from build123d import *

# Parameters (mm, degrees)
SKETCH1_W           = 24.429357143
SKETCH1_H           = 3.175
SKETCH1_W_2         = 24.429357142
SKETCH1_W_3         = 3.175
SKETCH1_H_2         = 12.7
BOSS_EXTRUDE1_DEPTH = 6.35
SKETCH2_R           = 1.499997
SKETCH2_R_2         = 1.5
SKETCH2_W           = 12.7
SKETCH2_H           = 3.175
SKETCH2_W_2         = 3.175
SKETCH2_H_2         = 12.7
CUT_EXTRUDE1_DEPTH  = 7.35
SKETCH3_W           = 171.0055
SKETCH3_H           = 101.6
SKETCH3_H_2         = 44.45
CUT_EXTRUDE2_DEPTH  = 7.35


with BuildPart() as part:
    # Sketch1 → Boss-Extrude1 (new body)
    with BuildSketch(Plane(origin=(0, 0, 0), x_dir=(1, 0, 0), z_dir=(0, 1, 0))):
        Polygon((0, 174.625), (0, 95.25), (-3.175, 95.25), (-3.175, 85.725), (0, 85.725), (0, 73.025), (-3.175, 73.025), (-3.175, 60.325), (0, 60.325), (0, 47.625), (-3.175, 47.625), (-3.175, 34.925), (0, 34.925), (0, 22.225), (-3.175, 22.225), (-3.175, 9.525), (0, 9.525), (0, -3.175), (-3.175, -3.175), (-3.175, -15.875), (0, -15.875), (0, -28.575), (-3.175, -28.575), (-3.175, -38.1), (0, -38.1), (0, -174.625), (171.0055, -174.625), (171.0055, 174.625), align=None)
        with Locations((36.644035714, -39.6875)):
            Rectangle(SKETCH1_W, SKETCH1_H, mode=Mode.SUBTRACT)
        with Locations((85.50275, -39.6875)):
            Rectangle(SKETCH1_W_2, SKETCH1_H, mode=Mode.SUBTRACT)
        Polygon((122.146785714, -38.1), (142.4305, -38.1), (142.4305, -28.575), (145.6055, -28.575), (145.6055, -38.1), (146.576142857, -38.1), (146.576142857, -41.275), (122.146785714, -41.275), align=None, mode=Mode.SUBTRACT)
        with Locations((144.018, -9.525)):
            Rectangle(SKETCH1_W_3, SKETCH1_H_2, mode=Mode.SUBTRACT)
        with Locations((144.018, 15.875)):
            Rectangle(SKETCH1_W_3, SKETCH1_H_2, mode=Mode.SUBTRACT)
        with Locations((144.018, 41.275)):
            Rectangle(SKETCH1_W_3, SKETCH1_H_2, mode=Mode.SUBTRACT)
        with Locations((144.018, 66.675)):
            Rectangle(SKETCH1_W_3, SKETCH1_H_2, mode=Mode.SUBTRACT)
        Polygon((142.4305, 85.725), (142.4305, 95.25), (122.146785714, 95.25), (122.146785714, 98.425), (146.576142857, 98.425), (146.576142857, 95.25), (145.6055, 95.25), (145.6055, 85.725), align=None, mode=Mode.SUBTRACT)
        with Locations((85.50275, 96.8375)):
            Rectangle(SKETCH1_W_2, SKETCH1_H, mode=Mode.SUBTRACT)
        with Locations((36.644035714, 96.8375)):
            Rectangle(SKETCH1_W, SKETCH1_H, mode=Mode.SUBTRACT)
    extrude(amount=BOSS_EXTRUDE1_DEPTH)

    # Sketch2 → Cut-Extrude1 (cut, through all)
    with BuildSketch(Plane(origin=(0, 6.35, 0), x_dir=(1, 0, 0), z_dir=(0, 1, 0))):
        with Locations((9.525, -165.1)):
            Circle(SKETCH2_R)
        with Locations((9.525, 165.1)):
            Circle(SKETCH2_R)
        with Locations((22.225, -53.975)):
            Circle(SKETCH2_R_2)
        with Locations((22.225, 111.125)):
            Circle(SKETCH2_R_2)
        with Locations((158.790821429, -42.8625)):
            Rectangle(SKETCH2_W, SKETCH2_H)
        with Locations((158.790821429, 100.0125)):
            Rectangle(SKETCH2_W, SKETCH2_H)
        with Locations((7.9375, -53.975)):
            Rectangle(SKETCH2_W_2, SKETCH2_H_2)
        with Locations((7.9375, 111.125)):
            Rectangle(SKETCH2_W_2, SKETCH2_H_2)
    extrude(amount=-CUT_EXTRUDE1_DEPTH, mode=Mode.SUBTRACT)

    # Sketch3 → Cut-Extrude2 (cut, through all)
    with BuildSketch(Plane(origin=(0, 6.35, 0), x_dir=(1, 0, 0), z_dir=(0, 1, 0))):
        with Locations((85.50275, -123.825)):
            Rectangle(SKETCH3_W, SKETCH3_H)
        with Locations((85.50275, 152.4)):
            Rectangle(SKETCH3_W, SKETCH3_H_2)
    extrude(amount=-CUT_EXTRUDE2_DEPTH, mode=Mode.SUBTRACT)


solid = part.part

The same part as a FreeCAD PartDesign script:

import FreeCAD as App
import Part
import Sketcher
from FreeCAD import Vector
Q = App.Units.Quantity


def add_polygon(sketch, points):
    """Adds a closed chain of lines whose ends are joined by coincident constraints."""
    first, n = sketch.GeometryCount, len(points)
    for a, b in zip(points, points[1:] + points[:1]):
        sketch.addGeometry(Part.LineSegment(App.Vector(*a, 0), App.Vector(*b, 0)), False)
    for i in range(n):
        sketch.addConstraint(Sketcher.Constraint("Coincident", first + i, 2, first + (i + 1) % n, 1))

doc = App.newDocument("Part")
body = doc.addObject("PartDesign::Body", "Body")

sketch1 = doc.addObject("Sketcher::SketchObject", "Sketch")
body.addObject(sketch1)
sketch1.AttachmentSupport = (doc.XZ_Plane, [""])
sketch1.MapMode = "FlatFace"
add_polygon(sketch1, [(0, -174.6), (0, -95.2), (-3.2, -95.2), (-3.2, -85.7), (0, -85.7), (0, -73), (-3.2, -73), (-3.2, -60.3), (0, -60.3), (0, -47.6), (-3.2, -47.6), (-3.2, -34.9), (0, -34.9), (0, -22.2), (-3.2, -22.2), (-3.2, -9.5), (0, -9.5), (0, 3.2), (-3.2, 3.2), (-3.2, 15.9), (0, 15.9), (0, 28.6), (-3.2, 28.6), (-3.2, 38.1), (0, 38.1), (0, 174.6), (171, 174.6), (171, -174.6)])
add_polygon(sketch1, [(48.9, 41.3), (24.4, 41.3), (24.4, 38.1), (48.9, 38.1)])
add_polygon(sketch1, [(97.7, 41.3), (73.3, 41.3), (73.3, 38.1), (97.7, 38.1)])
add_polygon(sketch1, [(122.1, 41.3), (122.1, 38.1), (142.4, 38.1), (142.4, 28.6), (145.6, 28.6), (145.6, 38.1), (146.6, 38.1), (146.6, 41.3)])
add_polygon(sketch1, [(145.6, 15.9), (142.4, 15.9), (142.4, 3.2), (145.6, 3.2)])
add_polygon(sketch1, [(145.6, -9.5), (142.4, -9.5), (142.4, -22.2), (145.6, -22.2)])
add_polygon(sketch1, [(48.9, -95.2), (24.4, -95.2), (24.4, -98.4), (48.9, -98.4)])
add_polygon(sketch1, [(145.6, -34.9), (142.4, -34.9), (142.4, -47.6), (145.6, -47.6)])
add_polygon(sketch1, [(97.7, -95.2), (73.3, -95.2), (73.3, -98.4), (97.7, -98.4)])
add_polygon(sketch1, [(145.6, -60.3), (142.4, -60.3), (142.4, -73), (145.6, -73)])
add_polygon(sketch1, [(145.6, -85.7), (142.4, -85.7), (142.4, -95.2), (122.1, -95.2), (122.1, -98.4), (146.6, -98.4), (146.6, -95.2), (145.6, -95.2)])
sketch1.addConstraint(Sketcher.Constraint("Vertical", 0))
sketch1.addConstraint(Sketcher.Constraint("Horizontal", 1))
sketch1.addConstraint(Sketcher.Constraint("Vertical", 2))
sketch1.addConstraint(Sketcher.Constraint("Horizontal", 3))
sketch1.addConstraint(Sketcher.Constraint("Vertical", 4))
sketch1.addConstraint(Sketcher.Constraint("Horizontal", 5))
sketch1.addConstraint(Sketcher.Constraint("Vertical", 6))
sketch1.addConstraint(Sketcher.Constraint("Horizontal", 7))
sketch1.addConstraint(Sketcher.Constraint("Vertical", 8))
sketch1.addConstraint(Sketcher.Constraint("Horizontal", 9))
sketch1.addConstraint(Sketcher.Constraint("Vertical", 10))
sketch1.addConstraint(Sketcher.Constraint("Horizontal", 11))
sketch1.addConstraint(Sketcher.Constraint("Vertical", 12))
sketch1.addConstraint(Sketcher.Constraint("Horizontal", 13))
sketch1.addConstraint(Sketcher.Constraint("Vertical", 14))
sketch1.addConstraint(Sketcher.Constraint("Horizontal", 15))
sketch1.addConstraint(Sketcher.Constraint("Vertical", 16))
sketch1.addConstraint(Sketcher.Constraint("Horizontal", 17))
sketch1.addConstraint(Sketcher.Constraint("Vertical", 18))
sketch1.addConstraint(Sketcher.Constraint("Horizontal", 19))
sketch1.addConstraint(Sketcher.Constraint("Vertical", 20))
sketch1.addConstraint(Sketcher.Constraint("Horizontal", 21))
sketch1.addConstraint(Sketcher.Constraint("Vertical", 22))
sketch1.addConstraint(Sketcher.Constraint("Horizontal", 23))
sketch1.addConstraint(Sketcher.Constraint("Vertical", 24))
sketch1.addConstraint(Sketcher.Constraint("Horizontal", 25))
sketch1.addConstraint(Sketcher.Constraint("Vertical", 26))
sketch1.addConstraint(Sketcher.Constraint("Horizontal", 27))
sketch1.addConstraint(Sketcher.Constraint("Horizontal", 28))
sketch1.addConstraint(Sketcher.Constraint("Vertical", 29))
sketch1.addConstraint(Sketcher.Constraint("Horizontal", 30))
sketch1.addConstraint(Sketcher.Constraint("Vertical", 31))
sketch1.addConstraint(Sketcher.Constraint("Horizontal", 32))
sketch1.addConstraint(Sketcher.Constraint("Vertical", 33))
sketch1.addConstraint(Sketcher.Constraint("Horizontal", 34))
sketch1.addConstraint(Sketcher.Constraint("Vertical", 35))
sketch1.addConstraint(Sketcher.Constraint("Vertical", 36))
sketch1.addConstraint(Sketcher.Constraint("Horizontal", 37))
sketch1.addConstraint(Sketcher.Constraint("Vertical", 38))
sketch1.addConstraint(Sketcher.Constraint("Horizontal", 39))
sketch1.addConstraint(Sketcher.Constraint("Vertical", 40))
sketch1.addConstraint(Sketcher.Constraint("Horizontal", 41))
sketch1.addConstraint(Sketcher.Constraint("Vertical", 42))
sketch1.addConstraint(Sketcher.Constraint("Horizontal", 43))
sketch1.addConstraint(Sketcher.Constraint("Horizontal", 44))
sketch1.addConstraint(Sketcher.Constraint("Vertical", 45))
sketch1.addConstraint(Sketcher.Constraint("Horizontal", 46))
sketch1.addConstraint(Sketcher.Constraint("Vertical", 47))
sketch1.addConstraint(Sketcher.Constraint("Horizontal", 48))
sketch1.addConstraint(Sketcher.Constraint("Vertical", 49))
sketch1.addConstraint(Sketcher.Constraint("Horizontal", 50))
sketch1.addConstraint(Sketcher.Constraint("Vertical", 51))
sketch1.addConstraint(Sketcher.Constraint("Horizontal", 52))
sketch1.addConstraint(Sketcher.Constraint("Vertical", 53))
sketch1.addConstraint(Sketcher.Constraint("Horizontal", 54))
sketch1.addConstraint(Sketcher.Constraint("Vertical", 55))
sketch1.addConstraint(Sketcher.Constraint("Horizontal", 56))
sketch1.addConstraint(Sketcher.Constraint("Vertical", 57))
sketch1.addConstraint(Sketcher.Constraint("Horizontal", 58))
sketch1.addConstraint(Sketcher.Constraint("Vertical", 59))
sketch1.addConstraint(Sketcher.Constraint("Horizontal", 60))
sketch1.addConstraint(Sketcher.Constraint("Vertical", 61))
sketch1.addConstraint(Sketcher.Constraint("Horizontal", 62))
sketch1.addConstraint(Sketcher.Constraint("Vertical", 63))
sketch1.addConstraint(Sketcher.Constraint("Horizontal", 64))
sketch1.addConstraint(Sketcher.Constraint("Vertical", 65))
sketch1.addConstraint(Sketcher.Constraint("Horizontal", 66))
sketch1.addConstraint(Sketcher.Constraint("Vertical", 67))
sketch1.addConstraint(Sketcher.Constraint("Horizontal", 68))
sketch1.addConstraint(Sketcher.Constraint("Vertical", 69))
sketch1.addConstraint(Sketcher.Constraint("Horizontal", 70))
sketch1.addConstraint(Sketcher.Constraint("Vertical", 71))
sketch1.addConstraint(Sketcher.Constraint("Horizontal", 72))
sketch1.addConstraint(Sketcher.Constraint("Vertical", 73))
sketch1.addConstraint(Sketcher.Constraint("Horizontal", 74))
sketch1.addConstraint(Sketcher.Constraint("Vertical", 75))
sketch1.addConstraint(Sketcher.Constraint("Symmetric", 24, 2, 27, 2, -1, 1))
sketch1.addConstraint(Sketcher.Constraint("PointOnObject", 0, 2, -2))
sketch1.addConstraint(Sketcher.Constraint("PointOnObject", 3, 2, -2))
sketch1.addConstraint(Sketcher.Constraint("PointOnObject", 7, 2, -2))
sketch1.addConstraint(Sketcher.Constraint("PointOnObject", 11, 2, -2))
sketch1.addConstraint(Sketcher.Constraint("PointOnObject", 15, 2, -2))
sketch1.addConstraint(Sketcher.Constraint("PointOnObject", 19, 2, -2))
sketch1.addConstraint(Sketcher.Constraint("Horizontal", 23, 2, 29, 2))
sketch1.addConstraint(Sketcher.Constraint("Horizontal", 31, 2, 32, 2))
sketch1.addConstraint(Sketcher.Constraint("Horizontal", 30, 2, 33, 2))
sketch1.addConstraint(Sketcher.Constraint("Horizontal", 34, 2, 36, 2))
sketch1.addConstraint(Sketcher.Constraint("Horizontal", 21, 2, 38, 2))
sketch1.addConstraint(Sketcher.Constraint("Horizontal", 37, 2, 40, 2))
sketch1.addConstraint(Sketcher.Constraint("Horizontal", 35, 2, 42, 2))
sketch1.addConstraint(Sketcher.Constraint("Horizontal", 19, 2, 44, 2))
sketch1.addConstraint(Sketcher.Constraint("Horizontal", 17, 2, 45, 2))
sketch1.addConstraint(Sketcher.Constraint("Horizontal", 15, 2, 48, 2))
sketch1.addConstraint(Sketcher.Constraint("Horizontal", 13, 2, 49, 2))
sketch1.addConstraint(Sketcher.Constraint("Horizontal", 1, 2, 52, 2))
sketch1.addConstraint(Sketcher.Constraint("Horizontal", 11, 2, 56, 2))
sketch1.addConstraint(Sketcher.Constraint("Horizontal", 9, 2, 57, 2))
sketch1.addConstraint(Sketcher.Constraint("Horizontal", 55, 2, 60, 2))
sketch1.addConstraint(Sketcher.Constraint("Horizontal", 54, 2, 61, 2))
sketch1.addConstraint(Sketcher.Constraint("Horizontal", 7, 2, 64, 2))
sketch1.addConstraint(Sketcher.Constraint("Horizontal", 5, 2, 65, 2))
sketch1.addConstraint(Sketcher.Constraint("Horizontal", 3, 2, 68, 2))
sketch1.addConstraint(Sketcher.Constraint("Horizontal", 63, 2, 69, 2))
sketch1.addConstraint(Sketcher.Constraint("Horizontal", 62, 2, 71, 2))
sketch1.addConstraint(Sketcher.Constraint("Horizontal", 70, 2, 73, 2))
sketch1.addConstraint(Sketcher.Constraint("Vertical", 2, 2, 5, 2))
sketch1.addConstraint(Sketcher.Constraint("Vertical", 6, 2, 9, 2))
sketch1.addConstraint(Sketcher.Constraint("Vertical", 10, 2, 13, 2))
sketch1.addConstraint(Sketcher.Constraint("Vertical", 14, 2, 17, 2))
sketch1.addConstraint(Sketcher.Constraint("Vertical", 18, 2, 21, 2))
sketch1.addConstraint(Sketcher.Constraint("Vertical", 38, 2, 44, 2))
sketch1.addConstraint(Sketcher.Constraint("Vertical", 40, 2, 46, 2))
sketch1.addConstraint(Sketcher.Constraint("Vertical", 45, 2, 48, 2))
sketch1.addConstraint(Sketcher.Constraint("Vertical", 47, 2, 50, 2))
sketch1.addConstraint(Sketcher.Constraint("Vertical", 29, 2, 52, 2))
sketch1.addConstraint(Sketcher.Constraint("Vertical", 31, 2, 54, 2))
sketch1.addConstraint(Sketcher.Constraint("Vertical", 49, 2, 56, 2))
sketch1.addConstraint(Sketcher.Constraint("Vertical", 51, 2, 58, 2))
sketch1.addConstraint(Sketcher.Constraint("Vertical", 33, 2, 60, 2))
sketch1.addConstraint(Sketcher.Constraint("Vertical", 35, 2, 62, 2))
sketch1.addConstraint(Sketcher.Constraint("Vertical", 57, 2, 64, 2))
sketch1.addConstraint(Sketcher.Constraint("Vertical", 59, 2, 66, 2))
sketch1.addConstraint(Sketcher.Constraint("Vertical", 65, 2, 68, 2))
sketch1.addConstraint(Sketcher.Constraint("Vertical", 43, 2, 70, 2))
sketch1.addConstraint(Sketcher.Constraint("Vertical", 42, 2, 72, 2))
sketch1.addConstraint(Sketcher.Constraint("Vertical", 67, 2, 74, 2))
sketch1.addConstraint(Sketcher.Constraint("Equal", 30, 32))
sketch1.addConstraint(Sketcher.Constraint("Equal", 23, 39))
sketch1.addConstraint(Sketcher.Constraint("Equal", 34, 43))
sketch1.addConstraint(Sketcher.Constraint("Equal", 4, 6))
sketch1.addConstraint(Sketcher.Constraint("Equal", 6, 8))
sketch1.addConstraint(Sketcher.Constraint("Equal", 8, 10))
sketch1.addConstraint(Sketcher.Constraint("Equal", 10, 12))
sketch1.addConstraint(Sketcher.Constraint("Equal", 12, 14))
sketch1.addConstraint(Sketcher.Constraint("Equal", 14, 16))
sketch1.addConstraint(Sketcher.Constraint("Equal", 16, 18))
sketch1.addConstraint(Sketcher.Constraint("Equal", 18, 20))
sketch1.addConstraint(Sketcher.Constraint("Equal", 2, 22))
sketch1.addConstraint(Sketcher.Constraint("Equal", 68, 29))
sketch1.addConstraint(Sketcher.Constraint("Equal", 42, 53))
sketch1.addConstraint(Sketcher.Constraint("DistanceY", 4, 1, 4, 2, Q("0.5 in")))
sketch1.addConstraint(Sketcher.Constraint("DistanceY", 26, 2, 26, 1, Q("13.75 in")))
sketch1.addConstraint(Sketcher.Constraint("DistanceY", -1, 1, 22, 2, Q("1.5 in")))
sketch1.addConstraint(Sketcher.Constraint("DistanceX", 1, 2, 1, 1, Q("0.125 in")))
sketch1.addConstraint(Sketcher.Constraint("DistanceY", 0, 1, 0, 2, Q("3.125 in")))
sketch1.addConstraint(Sketcher.Constraint("DistanceX", 25, 1, 25, 2, Q("6.7325 in")))
sketch1.addConstraint(Sketcher.Constraint("DistanceX", -1, 1, 37, 2, Q("5.6075 in")))
sketch1.addConstraint(Sketcher.Constraint("DistanceX", 28, 2, 28, 1, Q("24.429357 mm")))
sketch1.addConstraint(Sketcher.Constraint("DistanceX", 37, 1, 37, 2, Q("20.283714 mm")))
sketch1.addConstraint(Sketcher.Constraint("DistanceX", -1, 1, 32, 2, Q("73.288071 mm")))
sketch1.addConstraint(Sketcher.Constraint("DistanceX", -1, 1, 28, 2, Q("24.429357 mm")))
pad1 = doc.addObject("PartDesign::Pad", "Pad")
body.addObject(pad1)
pad1.Profile = sketch1
pad1.Length = Q("0.25 in")
pad1.Reversed = True

sketch2 = doc.addObject("Sketcher::SketchObject", "Sketch001")
body.addObject(sketch2)
sketch2.AttachmentSupport = (doc.XZ_Plane, [""])
sketch2.MapMode = "FlatFace"
sketch2.AttachmentOffset = App.Placement(Vector(0, 0, -0.25 * 25.4), App.Rotation())
sketch2.addGeometry(Part.Circle(Vector(9.5, 165.1, 0), Vector(0, 0, 1), 1.5), False)
sketch2.addGeometry(Part.Circle(Vector(9.5, -165.1, 0), Vector(0, 0, 1), 1.5), False)
sketch2.addGeometry(Part.Circle(Vector(22.2, 54, 0), Vector(0, 0, 1), 1.5), False)
sketch2.addGeometry(Part.Circle(Vector(22.2, -111.1, 0), Vector(0, 0, 1), 1.5), False)
add_polygon(sketch2, [(152.4, 41.3), (152.4, 44.5), (165.1, 44.5), (165.1, 41.3)])
add_polygon(sketch2, [(152.4, -101.6), (152.4, -98.4), (165.1, -98.4), (165.1, -101.6)])
add_polygon(sketch2, [(6.3, 47.6), (6.3, 60.3), (9.5, 60.3), (9.5, 47.6)])
add_polygon(sketch2, [(6.3, -117.5), (6.3, -104.8), (9.5, -104.8), (9.5, -117.5)])
sketch2.addConstraint(Sketcher.Constraint("Vertical", 4))
sketch2.addConstraint(Sketcher.Constraint("Horizontal", 5))
sketch2.addConstraint(Sketcher.Constraint("Vertical", 6))
sketch2.addConstraint(Sketcher.Constraint("Horizontal", 7))
sketch2.addConstraint(Sketcher.Constraint("Vertical", 8))
sketch2.addConstraint(Sketcher.Constraint("Horizontal", 9))
sketch2.addConstraint(Sketcher.Constraint("Vertical", 10))
sketch2.addConstraint(Sketcher.Constraint("Horizontal", 11))
sketch2.addConstraint(Sketcher.Constraint("Vertical", 12))
sketch2.addConstraint(Sketcher.Constraint("Horizontal", 13))
sketch2.addConstraint(Sketcher.Constraint("Vertical", 14))
sketch2.addConstraint(Sketcher.Constraint("Horizontal", 15))
sketch2.addConstraint(Sketcher.Constraint("Vertical", 16))
sketch2.addConstraint(Sketcher.Constraint("Horizontal", 17))
sketch2.addConstraint(Sketcher.Constraint("Vertical", 18))
sketch2.addConstraint(Sketcher.Constraint("Horizontal", 19))
sketch2.addConstraint(Sketcher.Constraint("Equal", 0, 1))
sketch2.addConstraint(Sketcher.Constraint("Equal", 2, 3))
sketch2.addConstraint(Sketcher.Constraint("Symmetric", 0, 3, 1, 3, -1))
sketch2.addConstraint(Sketcher.Constraint("Vertical", 2, 3, 3, 3))
sketch2.addConstraint(Sketcher.Constraint("Vertical", 7, 2, 8, 2))
sketch2.addConstraint(Sketcher.Constraint("Vertical", 6, 2, 9, 2))
sketch2.addConstraint(Sketcher.Constraint("Vertical", 1, 3, 13, 2))
sketch2.addConstraint(Sketcher.Constraint("Vertical", 15, 2, 16, 2))
sketch2.addConstraint(Sketcher.Constraint("Vertical", 14, 2, 17, 2))
sketch2.addConstraint(Sketcher.Constraint("Equal", 19, 4))
sketch2.addConstraint(Sketcher.Constraint("Equal", 6, 8))
sketch2.addConstraint(Sketcher.Constraint("Equal", 11, 12))
sketch2.addConstraint(Sketcher.Constraint("Equal", 14, 16))
sketch2.addConstraint(Sketcher.Constraint("DistanceX", 5, 1, 5, 2, Q("0.5 in")))
sketch2.addConstraint(Sketcher.Constraint("DistanceY", 10, 2, -1, 1, Q("4 in")))
sketch2.addConstraint(Sketcher.Constraint("DistanceY", 1, 3, 0, 3, Q("13 in")))
sketch2.addConstraint(Sketcher.Constraint("DistanceY", 3, 3, 6, 2, Q("6 in")))
sketch2.addConstraint(Sketcher.Constraint("DistanceY", 16, 2, 15, 2, Q("6 in")))
sketch2.addConstraint(Sketcher.Constraint("DistanceX", 0, 3, 2, 3, Q("0.5 in")))
sketch2.addConstraint(Sketcher.Constraint("DistanceY", 3, 3, 2, 3, Q("6.5 in")))
sketch2.addConstraint(Sketcher.Constraint("DistanceY", 3, 3, 8, 2, Q("0.5 in")))
sketch2.addConstraint(Sketcher.Constraint("Diameter", 2, Q("3 mm")))
sketch2.addConstraint(Sketcher.Constraint("DistanceX", 13, 1, 13, 2, Q("0.125 in")))
sketch2.addConstraint(Sketcher.Constraint("DistanceX", -1, 1, 12, 2, Q("0.25 in")))
sketch2.addConstraint(Sketcher.Constraint("DistanceY", 2, 3, 12, 2, Q("0.25 in")))
sketch2.addConstraint(Sketcher.Constraint("Diameter", 0, Q("2.999994 mm")))
sketch2.addConstraint(Sketcher.Constraint("DistanceX", -1, 1, 4, 2, Q("152.440821 mm")))
pocket1 = doc.addObject("PartDesign::Pocket", "Pocket")
body.addObject(pocket1)
pocket1.Profile = sketch2
pocket1.Type = "ThroughAll"
pocket1.Reversed = True

sketch3 = doc.addObject("Sketcher::SketchObject", "Sketch002")
body.addObject(sketch3)
sketch3.AttachmentSupport = (doc.XZ_Plane, [""])
sketch3.MapMode = "FlatFace"
sketch3.AttachmentOffset = App.Placement(Vector(0, 0, -0.25 * 25.4), App.Rotation())
add_polygon(sketch3, [(0, 73), (0, 175), (171, 175), (171, 73)])
add_polygon(sketch3, [(0, -175), (0, -130), (171, -130), (171, -175)])
sketch3.addConstraint(Sketcher.Constraint("Vertical", 0))
sketch3.addConstraint(Sketcher.Constraint("Horizontal", 1))
sketch3.addConstraint(Sketcher.Constraint("Vertical", 2))
sketch3.addConstraint(Sketcher.Constraint("Horizontal", 3))
sketch3.addConstraint(Sketcher.Constraint("Vertical", 4))
sketch3.addConstraint(Sketcher.Constraint("Horizontal", 5))
sketch3.addConstraint(Sketcher.Constraint("Vertical", 6))
sketch3.addConstraint(Sketcher.Constraint("Horizontal", 7))
sketch3.addConstraint(Sketcher.Constraint("Symmetric", 0, 2, 7, 2, -1, 1))
sketch3.addConstraint(Sketcher.Constraint("PointOnObject", 0, 2, -2))
sketch3.addConstraint(Sketcher.Constraint("Vertical", 2, 2, 5, 2))
sketch3.addConstraint(Sketcher.Constraint("DistanceY", 0, 1, 0, 2, Q("4 in")))
sketch3.addConstraint(Sketcher.Constraint("DistanceY", 4, 2, 3, 2, Q("8 in")))
sketch3.addConstraint(Sketcher.Constraint("DistanceY", 4, 1, 4, 2, Q("1.75 in")))
sketch3.addConstraint(Sketcher.Constraint("DistanceX", 1, 1, 1, 2, Q("6.7325 in")))
pocket2 = doc.addObject("PartDesign::Pocket", "Pocket001")
body.addObject(pocket2)
pocket2.Profile = sketch3
pocket2.Type = "ThroughAll"
pocket2.Reversed = True

doc.recompute()
